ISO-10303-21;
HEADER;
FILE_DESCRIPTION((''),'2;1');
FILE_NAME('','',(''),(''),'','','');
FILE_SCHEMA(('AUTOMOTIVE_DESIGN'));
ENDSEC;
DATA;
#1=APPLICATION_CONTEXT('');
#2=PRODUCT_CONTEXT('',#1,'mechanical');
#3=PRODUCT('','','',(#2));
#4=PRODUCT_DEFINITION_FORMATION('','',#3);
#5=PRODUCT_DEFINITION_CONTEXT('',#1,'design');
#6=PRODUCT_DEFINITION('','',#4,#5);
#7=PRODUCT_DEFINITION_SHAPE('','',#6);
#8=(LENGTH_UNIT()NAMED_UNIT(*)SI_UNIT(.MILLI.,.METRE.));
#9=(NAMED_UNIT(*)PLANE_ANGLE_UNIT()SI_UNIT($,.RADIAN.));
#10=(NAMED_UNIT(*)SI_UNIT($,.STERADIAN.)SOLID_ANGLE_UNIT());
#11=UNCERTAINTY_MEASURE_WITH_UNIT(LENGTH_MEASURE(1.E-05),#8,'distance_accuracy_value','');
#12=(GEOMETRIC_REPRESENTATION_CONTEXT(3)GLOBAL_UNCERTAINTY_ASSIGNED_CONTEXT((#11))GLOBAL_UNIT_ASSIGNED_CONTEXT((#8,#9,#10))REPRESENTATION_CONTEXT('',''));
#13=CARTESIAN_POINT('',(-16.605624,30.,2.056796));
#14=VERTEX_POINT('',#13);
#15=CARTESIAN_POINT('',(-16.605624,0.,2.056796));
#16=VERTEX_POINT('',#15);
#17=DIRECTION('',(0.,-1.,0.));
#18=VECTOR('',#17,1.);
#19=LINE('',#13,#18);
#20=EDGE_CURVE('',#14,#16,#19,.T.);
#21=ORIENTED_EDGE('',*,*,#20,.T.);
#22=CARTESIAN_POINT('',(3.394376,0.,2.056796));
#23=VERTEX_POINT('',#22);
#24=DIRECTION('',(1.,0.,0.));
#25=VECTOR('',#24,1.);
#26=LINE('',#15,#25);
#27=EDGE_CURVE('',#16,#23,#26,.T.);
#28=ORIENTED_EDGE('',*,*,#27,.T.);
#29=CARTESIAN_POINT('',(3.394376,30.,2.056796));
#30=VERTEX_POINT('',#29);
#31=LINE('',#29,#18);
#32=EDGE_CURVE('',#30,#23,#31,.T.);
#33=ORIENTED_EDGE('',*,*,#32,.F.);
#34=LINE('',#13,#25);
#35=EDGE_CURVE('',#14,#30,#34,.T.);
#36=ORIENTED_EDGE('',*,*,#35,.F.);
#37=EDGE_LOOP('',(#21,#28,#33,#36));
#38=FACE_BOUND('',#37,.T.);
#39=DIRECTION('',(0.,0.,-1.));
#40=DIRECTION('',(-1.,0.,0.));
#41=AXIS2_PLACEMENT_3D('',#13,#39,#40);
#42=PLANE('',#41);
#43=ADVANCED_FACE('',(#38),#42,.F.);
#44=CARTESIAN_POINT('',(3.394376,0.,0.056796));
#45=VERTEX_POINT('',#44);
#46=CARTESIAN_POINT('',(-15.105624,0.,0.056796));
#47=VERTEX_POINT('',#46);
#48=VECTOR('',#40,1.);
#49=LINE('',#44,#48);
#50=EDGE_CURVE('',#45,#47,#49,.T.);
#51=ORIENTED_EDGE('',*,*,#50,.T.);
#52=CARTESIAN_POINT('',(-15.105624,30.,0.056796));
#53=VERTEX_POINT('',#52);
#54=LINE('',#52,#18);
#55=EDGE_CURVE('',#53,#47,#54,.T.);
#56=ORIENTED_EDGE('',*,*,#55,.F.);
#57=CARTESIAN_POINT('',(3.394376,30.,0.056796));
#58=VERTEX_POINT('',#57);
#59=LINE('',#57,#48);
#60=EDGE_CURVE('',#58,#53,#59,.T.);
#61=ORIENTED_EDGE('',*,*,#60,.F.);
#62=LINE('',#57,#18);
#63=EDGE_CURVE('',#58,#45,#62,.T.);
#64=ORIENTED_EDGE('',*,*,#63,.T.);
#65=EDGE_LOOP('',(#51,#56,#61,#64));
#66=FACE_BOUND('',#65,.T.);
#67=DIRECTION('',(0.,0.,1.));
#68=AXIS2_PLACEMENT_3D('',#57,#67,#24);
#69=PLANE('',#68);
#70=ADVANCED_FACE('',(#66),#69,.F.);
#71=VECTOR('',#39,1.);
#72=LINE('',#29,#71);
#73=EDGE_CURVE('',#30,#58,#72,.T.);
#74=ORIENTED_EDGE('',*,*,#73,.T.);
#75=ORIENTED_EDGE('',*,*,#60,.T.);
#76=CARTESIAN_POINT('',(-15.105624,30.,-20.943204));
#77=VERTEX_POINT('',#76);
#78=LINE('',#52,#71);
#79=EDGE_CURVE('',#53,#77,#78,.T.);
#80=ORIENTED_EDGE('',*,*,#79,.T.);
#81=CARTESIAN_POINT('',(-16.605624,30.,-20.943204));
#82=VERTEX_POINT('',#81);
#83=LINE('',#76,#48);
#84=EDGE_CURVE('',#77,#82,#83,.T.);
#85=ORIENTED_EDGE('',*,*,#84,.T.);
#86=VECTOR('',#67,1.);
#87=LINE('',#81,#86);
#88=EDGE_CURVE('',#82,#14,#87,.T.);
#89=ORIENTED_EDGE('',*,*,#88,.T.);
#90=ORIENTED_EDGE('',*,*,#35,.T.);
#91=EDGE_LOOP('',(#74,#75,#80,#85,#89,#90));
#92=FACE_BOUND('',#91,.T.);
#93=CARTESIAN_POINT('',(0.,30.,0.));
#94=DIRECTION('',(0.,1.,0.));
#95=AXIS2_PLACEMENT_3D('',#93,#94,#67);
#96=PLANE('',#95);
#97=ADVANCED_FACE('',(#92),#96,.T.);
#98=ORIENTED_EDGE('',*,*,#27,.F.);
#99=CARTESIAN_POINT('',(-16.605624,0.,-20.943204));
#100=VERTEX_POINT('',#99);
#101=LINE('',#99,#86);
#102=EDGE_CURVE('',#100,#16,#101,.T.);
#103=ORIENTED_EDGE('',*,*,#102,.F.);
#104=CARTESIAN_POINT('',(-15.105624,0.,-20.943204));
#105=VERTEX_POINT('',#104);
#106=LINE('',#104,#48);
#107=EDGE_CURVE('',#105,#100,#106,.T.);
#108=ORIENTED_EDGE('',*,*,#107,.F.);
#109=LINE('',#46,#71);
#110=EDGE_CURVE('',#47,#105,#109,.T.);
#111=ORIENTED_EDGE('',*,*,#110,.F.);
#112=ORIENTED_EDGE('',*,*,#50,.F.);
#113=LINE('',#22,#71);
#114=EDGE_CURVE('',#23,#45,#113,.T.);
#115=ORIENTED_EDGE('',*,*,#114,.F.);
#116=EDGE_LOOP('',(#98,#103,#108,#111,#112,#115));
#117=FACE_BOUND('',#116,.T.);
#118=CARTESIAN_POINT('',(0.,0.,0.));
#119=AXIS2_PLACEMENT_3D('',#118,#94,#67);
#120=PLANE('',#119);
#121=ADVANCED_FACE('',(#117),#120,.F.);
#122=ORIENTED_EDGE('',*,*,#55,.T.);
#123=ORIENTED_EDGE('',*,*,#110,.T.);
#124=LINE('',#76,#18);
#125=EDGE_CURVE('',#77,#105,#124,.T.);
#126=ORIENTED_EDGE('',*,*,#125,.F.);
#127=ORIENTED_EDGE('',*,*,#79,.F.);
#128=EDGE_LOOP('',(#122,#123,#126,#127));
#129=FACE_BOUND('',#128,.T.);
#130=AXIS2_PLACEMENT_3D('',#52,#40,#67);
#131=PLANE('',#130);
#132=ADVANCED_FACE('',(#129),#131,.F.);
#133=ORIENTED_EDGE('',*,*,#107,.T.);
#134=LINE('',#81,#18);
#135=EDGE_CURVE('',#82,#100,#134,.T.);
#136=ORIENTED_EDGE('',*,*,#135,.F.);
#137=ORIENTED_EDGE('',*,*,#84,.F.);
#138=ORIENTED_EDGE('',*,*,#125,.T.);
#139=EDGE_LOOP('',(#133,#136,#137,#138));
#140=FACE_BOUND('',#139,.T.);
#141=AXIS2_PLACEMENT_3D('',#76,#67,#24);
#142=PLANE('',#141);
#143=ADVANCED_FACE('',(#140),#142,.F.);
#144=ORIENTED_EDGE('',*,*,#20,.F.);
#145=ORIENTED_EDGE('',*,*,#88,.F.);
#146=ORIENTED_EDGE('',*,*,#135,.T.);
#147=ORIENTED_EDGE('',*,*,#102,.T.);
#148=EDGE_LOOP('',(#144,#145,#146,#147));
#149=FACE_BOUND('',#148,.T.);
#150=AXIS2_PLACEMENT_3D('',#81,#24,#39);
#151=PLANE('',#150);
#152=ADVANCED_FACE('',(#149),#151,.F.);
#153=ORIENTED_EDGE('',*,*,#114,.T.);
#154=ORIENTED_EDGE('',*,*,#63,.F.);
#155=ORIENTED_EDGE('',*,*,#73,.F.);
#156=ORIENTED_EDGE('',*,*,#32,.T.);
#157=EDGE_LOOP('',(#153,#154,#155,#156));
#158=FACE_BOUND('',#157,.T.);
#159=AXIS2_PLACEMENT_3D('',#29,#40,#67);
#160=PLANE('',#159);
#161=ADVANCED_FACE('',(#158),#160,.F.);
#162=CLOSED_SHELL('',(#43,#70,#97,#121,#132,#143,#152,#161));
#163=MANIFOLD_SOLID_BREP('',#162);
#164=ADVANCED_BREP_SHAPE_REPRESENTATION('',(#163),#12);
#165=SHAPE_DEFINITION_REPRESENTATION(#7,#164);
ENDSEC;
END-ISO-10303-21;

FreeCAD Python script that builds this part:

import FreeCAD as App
import Part
import Sketcher

doc = App.newDocument("Part")
body = doc.addObject("PartDesign::Body", "Body")

# Sketch on XZ plane
sketch1 = body.newObject("Sketcher::SketchObject", "Sketch")
sketch1.AttachmentSupport = (doc.getObject("XZ_Plane"), [""])
sketch1.MapMode = "FlatFace"
sketch1.addGeometry(Part.LineSegment(App.Vector(-16.6, -20.9, 0), App.Vector(-16.6, 2.1, 0)), False)
sketch1.addGeometry(Part.LineSegment(App.Vector(-16.6, 2.1, 0), App.Vector(3.4, 2.1, 0)), False)
sketch1.addGeometry(Part.LineSegment(App.Vector(3.4, 2.1, 0), App.Vector(3.4, 0.1, 0)), False)
sketch1.addGeometry(Part.LineSegment(App.Vector(3.4, 0.1, 0), App.Vector(-15.1, 0.1, 0)), False)
sketch1.addGeometry(Part.LineSegment(App.Vector(-15.1, 0.1, 0), App.Vector(-15.1, -20.9, 0)), False)
sketch1.addGeometry(Part.LineSegment(App.Vector(-15.1, -20.9, 0), App.Vector(-16.6, -20.9, 0)), False)
sketch1.addConstraint(Sketcher.Constraint("Coincident", 0, 2, 1, 1))
sketch1.addConstraint(Sketcher.Constraint("Coincident", 1, 2, 2, 1))
sketch1.addConstraint(Sketcher.Constraint("Coincident", 2, 2, 3, 1))
sketch1.addConstraint(Sketcher.Constraint("Coincident", 3, 2, 4, 1))
sketch1.addConstraint(Sketcher.Constraint("Coincident", 4, 2, 5, 1))
sketch1.addConstraint(Sketcher.Constraint("Coincident", 5, 2, 0, 1))
sketch1.addConstraint(Sketcher.Constraint("Vertical", 0))
sketch1.addConstraint(Sketcher.Constraint("Horizontal", 1))
sketch1.addConstraint(Sketcher.Constraint("Vertical", 2))
sketch1.addConstraint(Sketcher.Constraint("Horizontal", 3))
sketch1.addConstraint(Sketcher.Constraint("Vertical", 4))
sketch1.addConstraint(Sketcher.Constraint("Horizontal", 5))
sketch1.addConstraint(Sketcher.Constraint("DistanceX", 1, 1, 1, 2, 20.0))
sketch1.addConstraint(Sketcher.Constraint("DistanceY", 0, 1, 0, 2, 23.0))
sketch1.addConstraint(Sketcher.Constraint("DistanceY", 2, 2, 2, 1, 2.0))
sketch1.addConstraint(Sketcher.Constraint("DistanceX", 3, 2, 3, 1, 18.5))
sketch1.addConstraint(Sketcher.Constraint("DistanceX", 0, 2, -1, 1, 16.605624))
sketch1.addConstraint(Sketcher.Constraint("DistanceY", -1, 1, 0, 2, 2.056796))
pad1 = body.newObject("PartDesign::Pad", "Pad")
pad1.Profile = sketch1
pad1.Length = 30
pad1.Reversed = True

doc.recompute()
